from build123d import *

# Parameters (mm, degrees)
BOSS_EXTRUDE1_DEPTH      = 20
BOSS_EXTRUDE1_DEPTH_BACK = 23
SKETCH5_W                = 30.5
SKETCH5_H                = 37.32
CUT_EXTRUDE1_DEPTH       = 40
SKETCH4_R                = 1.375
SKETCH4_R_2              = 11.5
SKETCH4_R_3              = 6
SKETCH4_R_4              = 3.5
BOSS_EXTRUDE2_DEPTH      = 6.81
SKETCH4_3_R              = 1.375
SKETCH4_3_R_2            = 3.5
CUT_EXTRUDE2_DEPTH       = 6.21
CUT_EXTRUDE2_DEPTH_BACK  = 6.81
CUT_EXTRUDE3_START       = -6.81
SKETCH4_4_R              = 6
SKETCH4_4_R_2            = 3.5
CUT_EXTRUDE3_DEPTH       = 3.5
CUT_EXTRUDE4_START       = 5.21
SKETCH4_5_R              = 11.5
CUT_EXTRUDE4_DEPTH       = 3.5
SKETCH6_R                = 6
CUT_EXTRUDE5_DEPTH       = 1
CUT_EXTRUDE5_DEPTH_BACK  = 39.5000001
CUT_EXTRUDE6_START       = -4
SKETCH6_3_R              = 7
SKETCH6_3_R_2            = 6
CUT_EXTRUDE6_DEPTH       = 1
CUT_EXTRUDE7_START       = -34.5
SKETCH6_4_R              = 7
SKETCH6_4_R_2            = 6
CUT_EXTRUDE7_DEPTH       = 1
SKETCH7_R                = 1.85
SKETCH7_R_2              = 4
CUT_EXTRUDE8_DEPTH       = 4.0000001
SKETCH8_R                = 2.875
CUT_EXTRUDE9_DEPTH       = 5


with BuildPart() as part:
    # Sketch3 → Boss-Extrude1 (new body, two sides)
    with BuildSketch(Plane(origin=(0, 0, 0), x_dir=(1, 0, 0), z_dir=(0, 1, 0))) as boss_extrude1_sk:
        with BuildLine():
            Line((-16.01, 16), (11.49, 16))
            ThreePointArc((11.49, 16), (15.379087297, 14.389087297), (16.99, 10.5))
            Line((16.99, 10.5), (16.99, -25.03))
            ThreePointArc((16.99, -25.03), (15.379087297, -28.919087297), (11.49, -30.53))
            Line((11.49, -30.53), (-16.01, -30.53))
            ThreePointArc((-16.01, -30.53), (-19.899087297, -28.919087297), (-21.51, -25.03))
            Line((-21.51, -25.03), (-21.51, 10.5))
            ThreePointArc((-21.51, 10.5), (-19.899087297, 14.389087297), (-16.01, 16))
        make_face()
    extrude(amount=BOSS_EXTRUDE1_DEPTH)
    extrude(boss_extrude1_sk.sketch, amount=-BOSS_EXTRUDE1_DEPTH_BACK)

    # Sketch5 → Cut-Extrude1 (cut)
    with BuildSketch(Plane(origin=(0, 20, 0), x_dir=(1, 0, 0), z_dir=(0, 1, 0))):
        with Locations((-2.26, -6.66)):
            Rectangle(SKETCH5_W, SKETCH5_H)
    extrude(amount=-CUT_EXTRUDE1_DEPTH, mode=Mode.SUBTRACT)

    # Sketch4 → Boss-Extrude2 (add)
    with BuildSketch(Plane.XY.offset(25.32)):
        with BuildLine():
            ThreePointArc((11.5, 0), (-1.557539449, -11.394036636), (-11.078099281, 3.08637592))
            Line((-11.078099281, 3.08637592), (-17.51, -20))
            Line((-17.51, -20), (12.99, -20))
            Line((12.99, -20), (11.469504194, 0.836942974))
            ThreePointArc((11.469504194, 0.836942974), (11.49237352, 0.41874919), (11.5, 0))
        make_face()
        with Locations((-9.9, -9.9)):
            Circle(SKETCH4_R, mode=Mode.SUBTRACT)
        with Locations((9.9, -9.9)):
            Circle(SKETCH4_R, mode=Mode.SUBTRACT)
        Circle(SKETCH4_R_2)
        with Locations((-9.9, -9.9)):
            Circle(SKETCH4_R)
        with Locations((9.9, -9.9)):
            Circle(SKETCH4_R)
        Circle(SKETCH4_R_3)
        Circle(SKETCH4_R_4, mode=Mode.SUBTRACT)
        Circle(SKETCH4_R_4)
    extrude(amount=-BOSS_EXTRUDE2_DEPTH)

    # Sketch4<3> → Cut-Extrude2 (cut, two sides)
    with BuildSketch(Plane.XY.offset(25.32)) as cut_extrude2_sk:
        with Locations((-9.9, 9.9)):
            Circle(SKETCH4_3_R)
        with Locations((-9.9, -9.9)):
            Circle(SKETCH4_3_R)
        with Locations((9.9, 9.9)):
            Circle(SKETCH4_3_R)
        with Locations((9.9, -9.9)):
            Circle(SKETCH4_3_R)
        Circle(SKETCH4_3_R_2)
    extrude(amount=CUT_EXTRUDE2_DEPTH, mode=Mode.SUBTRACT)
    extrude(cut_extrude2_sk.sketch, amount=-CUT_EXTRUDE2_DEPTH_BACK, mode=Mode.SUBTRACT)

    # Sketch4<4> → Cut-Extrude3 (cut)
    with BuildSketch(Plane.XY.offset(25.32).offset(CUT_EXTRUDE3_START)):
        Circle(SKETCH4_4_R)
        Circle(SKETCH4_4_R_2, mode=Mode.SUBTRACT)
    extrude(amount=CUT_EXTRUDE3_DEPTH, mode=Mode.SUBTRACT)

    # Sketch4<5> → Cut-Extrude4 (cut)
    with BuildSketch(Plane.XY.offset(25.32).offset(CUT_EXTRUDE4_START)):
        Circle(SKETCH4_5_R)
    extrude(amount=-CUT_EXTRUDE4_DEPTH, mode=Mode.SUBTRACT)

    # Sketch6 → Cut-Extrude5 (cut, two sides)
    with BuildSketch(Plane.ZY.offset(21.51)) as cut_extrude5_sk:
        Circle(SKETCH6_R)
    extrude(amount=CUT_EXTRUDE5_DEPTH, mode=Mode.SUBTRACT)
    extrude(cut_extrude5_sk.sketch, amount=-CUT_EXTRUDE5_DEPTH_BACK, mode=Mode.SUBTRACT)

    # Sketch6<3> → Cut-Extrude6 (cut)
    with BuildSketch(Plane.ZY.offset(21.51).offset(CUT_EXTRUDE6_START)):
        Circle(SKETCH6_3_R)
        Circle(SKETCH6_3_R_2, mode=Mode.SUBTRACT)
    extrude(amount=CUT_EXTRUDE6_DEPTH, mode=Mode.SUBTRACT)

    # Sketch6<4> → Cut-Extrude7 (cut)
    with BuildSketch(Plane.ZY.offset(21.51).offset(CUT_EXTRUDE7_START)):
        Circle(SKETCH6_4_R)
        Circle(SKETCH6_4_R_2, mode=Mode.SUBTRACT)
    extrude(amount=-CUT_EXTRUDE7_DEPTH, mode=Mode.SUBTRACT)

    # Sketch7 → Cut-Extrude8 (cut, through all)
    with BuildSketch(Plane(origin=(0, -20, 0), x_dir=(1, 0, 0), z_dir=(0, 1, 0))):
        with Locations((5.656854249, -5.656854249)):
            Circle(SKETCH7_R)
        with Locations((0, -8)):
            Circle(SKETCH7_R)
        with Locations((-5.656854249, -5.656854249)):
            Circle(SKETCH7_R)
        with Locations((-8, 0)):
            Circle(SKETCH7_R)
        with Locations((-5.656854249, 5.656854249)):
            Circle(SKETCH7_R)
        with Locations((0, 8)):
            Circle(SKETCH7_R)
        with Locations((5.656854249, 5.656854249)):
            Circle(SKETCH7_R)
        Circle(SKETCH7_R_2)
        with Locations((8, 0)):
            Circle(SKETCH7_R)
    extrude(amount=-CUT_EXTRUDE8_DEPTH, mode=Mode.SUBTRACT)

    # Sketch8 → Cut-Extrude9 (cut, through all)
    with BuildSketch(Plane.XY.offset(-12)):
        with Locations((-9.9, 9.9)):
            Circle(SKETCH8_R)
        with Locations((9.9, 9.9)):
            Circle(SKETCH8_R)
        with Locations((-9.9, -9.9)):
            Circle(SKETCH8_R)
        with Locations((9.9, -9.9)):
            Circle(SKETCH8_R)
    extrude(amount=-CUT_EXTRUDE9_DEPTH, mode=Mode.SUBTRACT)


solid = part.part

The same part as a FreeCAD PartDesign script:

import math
import FreeCAD as App
import Part
import Sketcher


def add_polygon(sketch, points):
    """Adds a closed chain of lines whose ends are joined by coincident constraints."""
    first, n = sketch.GeometryCount, len(points)
    for a, b in zip(points, points[1:] + points[:1]):
        sketch.addGeometry(Part.LineSegment(App.Vector(*a, 0), App.Vector(*b, 0)), False)
    for i in range(n):
        sketch.addConstraint(Sketcher.Constraint("Coincident", first + i, 2, first + (i + 1) % n, 1))

doc = App.newDocument("Part")
body = doc.addObject("PartDesign::Body", "Body")

sketch1 = doc.addObject("Sketcher::SketchObject", "Sketch")
body.addObject(sketch1)
sketch1.AttachmentSupport = (doc.XZ_Plane, [""])
sketch1.MapMode = "FlatFace"
sketch1.addGeometry(Part.LineSegment(App.Vector(11, -16, 0), App.Vector(-16, -16, 0)), False)
sketch1.addGeometry(Part.ArcOfCircle(Part.Circle(App.Vector(-16, -11, 0), App.Vector(0, 0, 1), 5), math.radians(180), math.radians(270)), False)
sketch1.addGeometry(Part.LineSegment(App.Vector(-22, -10, 0), App.Vector(-22, 25, 0)), False)
sketch1.addGeometry(Part.ArcOfCircle(Part.Circle(App.Vector(-16, 25, 0), App.Vector(0, 0, 1), 5), math.radians(90), math.radians(180)), False)
sketch1.addGeometry(Part.LineSegment(App.Vector(-16, 31, 0), App.Vector(11, 31, 0)), False)
sketch1.addGeometry(Part.ArcOfCircle(Part.Circle(App.Vector(11, 25, 0), App.Vector(0, 0, 1), 5), math.radians(0), math.radians(90)), False)
sketch1.addGeometry(Part.LineSegment(App.Vector(17, 25, 0), App.Vector(17, -10, 0)), False)
sketch1.addGeometry(Part.ArcOfCircle(Part.Circle(App.Vector(11, -11, 0), App.Vector(0, 0, 1), 5), math.radians(-90), math.radians(0)), False)
sketch1.addConstraint(Sketcher.Constraint("Tangent", 0, 2, 1, 2))
sketch1.addConstraint(Sketcher.Constraint("Tangent", 1, 1, 2, 1))
sketch1.addConstraint(Sketcher.Constraint("Tangent", 2, 2, 3, 2))
sketch1.addConstraint(Sketcher.Constraint("Tangent", 3, 1, 4, 1))
sketch1.addConstraint(Sketcher.Constraint("Tangent", 4, 2, 5, 2))
sketch1.addConstraint(Sketcher.Constraint("Tangent", 5, 1, 6, 1))
sketch1.addConstraint(Sketcher.Constraint("Tangent", 6, 2, 7, 2))
sketch1.addConstraint(Sketcher.Constraint("Tangent", 7, 1, 0, 1))
sketch1.addConstraint(Sketcher.Constraint("Horizontal", 0))
sketch1.addConstraint(Sketcher.Constraint("Vertical", 2))
sketch1.addConstraint(Sketcher.Constraint("Horizontal", 4))
sketch1.addConstraint(Sketcher.Constraint("Vertical", 6))
sketch1.addConstraint(Sketcher.Constraint("Equal", 1, 3))
sketch1.addConstraint(Sketcher.Constraint("Equal", 3, 5))
sketch1.addConstraint(Sketcher.Constraint("Equal", 5, 7))
sketch1.addConstraint(Sketcher.Constraint("Radius", 1, 5.5))
sketch1.addConstraint(Sketcher.Constraint("DistanceX", 0, 2, 0, 1, 27.5))
sketch1.addConstraint(Sketcher.Constraint("DistanceY", 0, 2, -1, 1, 16.0))
sketch1.addConstraint(Sketcher.Constraint("DistanceY", 2, 1, 2, 2, 35.53))
sketch1.addConstraint(Sketcher.Constraint("DistanceX", 1, 3, -1, 1, 16.01))
pad1 = doc.addObject("PartDesign::Pad", "Pad")
body.addObject(pad1)
pad1.Profile = sketch1
pad1.Type = "TwoLengths"
pad1.Length = 20
pad1.Length2 = 23
pad1.Reversed = True

sketch2 = doc.addObject("Sketcher::SketchObject", "Sketch001")
body.addObject(sketch2)
sketch2.AttachmentSupport = (doc.XZ_Plane, [""])
sketch2.MapMode = "FlatFace"
sketch2.AttachmentOffset = App.Placement(App.Vector(0, 0, -20), App.Rotation())
add_polygon(sketch2, [(-18, -12), (-18, 25), (13, 25), (13, -12)])
sketch2.addConstraint(Sketcher.Constraint("Vertical", 0))
sketch2.addConstraint(Sketcher.Constraint("Horizontal", 1))
sketch2.addConstraint(Sketcher.Constraint("Vertical", 2))
sketch2.addConstraint(Sketcher.Constraint("Horizontal", 3))
sketch2.addConstraint(Sketcher.Constraint("DistanceX", 1, 1, 1, 2, 30.5))
sketch2.addConstraint(Sketcher.Constraint("DistanceY", 2, 2, -1, 1, 12.0))
sketch2.addConstraint(Sketcher.Constraint("DistanceY", 0, 1, 0, 2, 37.32))
sketch2.addConstraint(Sketcher.Constraint("DistanceX", 0, 2, -1, 1, 17.51))
pocket1 = doc.addObject("PartDesign::Pocket", "Pocket")
body.addObject(pocket1)
pocket1.Profile = sketch2
pocket1.Length = 40
pocket1.Reversed = True

sketch3 = doc.addObject("Sketcher::SketchObject", "Sketch002")
body.addObject(sketch3)
sketch3.AttachmentSupport = (doc.XY_Plane, [""])
sketch3.MapMode = "FlatFace"
sketch3.AttachmentOffset = App.Placement(App.Vector(0, 0, 25.32), App.Rotation())
sketch3.addGeometry(Part.LineSegment(App.Vector(-11, 3, 0), App.Vector(-18, -20, 0)), False)
sketch3.addGeometry(Part.LineSegment(App.Vector(-18, -20, 0), App.Vector(13, -20, 0)), False)
sketch3.addGeometry(Part.LineSegment(App.Vector(13, -20, 0), App.Vector(11, 1, 0)), False)
sketch3.addGeometry(Part.ArcOfCircle(Part.Circle(App.Vector(0, 0, 0), App.Vector(0, 0, 1), 12), math.radians(4), math.radians(164)), False)
sketch3.addConstraint(Sketcher.Constraint("Coincident", 0, 2, 1, 1))
sketch3.addConstraint(Sketcher.Constraint("Coincident", 1, 2, 2, 1))
sketch3.addConstraint(Sketcher.Constraint("Tangent", 2, 2, 3, 1))
sketch3.addConstraint(Sketcher.Constraint("Tangent", 3, 2, 0, 1))
sketch3.addConstraint(Sketcher.Constraint("Horizontal", 1))
sketch3.addConstraint(Sketcher.Constraint("Coincident", 3, 3, -1, 1))
sketch3.addConstraint(Sketcher.Constraint("Radius", 3, 11.5))
sketch3.addConstraint(Sketcher.Constraint("DistanceX", 1, 1, 1, 2, 30.5))
sketch3.addConstraint(Sketcher.Constraint("DistanceY", 0, 2, -1, 1, 20.0))
sketch3.addConstraint(Sketcher.Constraint("DistanceX", 0, 2, -1, 1, 17.51))
pad2 = doc.addObject("PartDesign::Pad", "Pad001")
body.addObject(pad2)
pad2.Profile = sketch3
pad2.Length = 6.81
pad2.Reversed = True

sketch4 = doc.addObject("Sketcher::SketchObject", "Sketch003")
body.addObject(sketch4)
sketch4.AttachmentSupport = (doc.XY_Plane, [""])
sketch4.MapMode = "FlatFace"
sketch4.AttachmentOffset = App.Placement(App.Vector(0, 0, 25.32), App.Rotation())
sketch4.addGeometry(Part.Circle(App.Vector(-9.9, 9.9, 0), App.Vector(0, 0, 1), 1.4), False)
sketch4.addGeometry(Part.Circle(App.Vector(-9.9, -9.9, 0), App.Vector(0, 0, 1), 1.4), False)
sketch4.addGeometry(Part.Circle(App.Vector(9.9, 9.9, 0), App.Vector(0, 0, 1), 1.4), False)
sketch4.addGeometry(Part.Circle(App.Vector(9.9, -9.9, 0), App.Vector(0, 0, 1), 1.4), False)
sketch4.addGeometry(Part.Circle(App.Vector(0, 0, 0), App.Vector(0, 0, 1), 3.5), False)
sketch4.addConstraint(Sketcher.Constraint("Coincident", 4, 3, -1, 1))
sketch4.addConstraint(Sketcher.Constraint("Equal", 0, 1))
sketch4.addConstraint(Sketcher.Constraint("Equal", 1, 2))
sketch4.addConstraint(Sketcher.Constraint("Equal", 2, 3))
sketch4.addConstraint(Sketcher.Constraint("Symmetric", 1, 3, 2, 3, -1, 1))
sketch4.addConstraint(Sketcher.Constraint("Symmetric", 0, 3, 3, 3, -1, 1))
sketch4.addConstraint(Sketcher.Constraint("Symmetric", 0, 3, 2, 3, -2))
sketch4.addConstraint(Sketcher.Constraint("Diameter", 4, 7.0))
sketch4.addConstraint(Sketcher.Constraint("Diameter", 0, 2.75))
sketch4.addConstraint(Sketcher.Constraint("DistanceX", 0, 3, -1, 1, 9.9))
sketch4.addConstraint(Sketcher.Constraint("DistanceY", -1, 1, 0, 3, 9.9))
pocket2 = doc.addObject("PartDesign::Pocket", "Pocket001")
body.addObject(pocket2)
pocket2.Profile = sketch4
pocket2.Type = "TwoLengths"
pocket2.Length = 6.21
pocket2.Length2 = 6.81
pocket2.Reversed = True

sketch5 = doc.addObject("Sketcher::SketchObject", "Sketch004")
body.addObject(sketch5)
sketch5.AttachmentSupport = (doc.XY_Plane, [""])
sketch5.MapMode = "FlatFace"
sketch5.AttachmentOffset = App.Placement(App.Vector(0, 0, 18.51), App.Rotation())
sketch5.addGeometry(Part.Circle(App.Vector(0, 0, 0), App.Vector(0, 0, 1), 6), False)
sketch5.addGeometry(Part.Circle(App.Vector(0, 0, 0), App.Vector(0, 0, 1), 3.5), False)
sketch5.addConstraint(Sketcher.Constraint("Coincident", 0, 3, -1, 1))
sketch5.addConstraint(Sketcher.Constraint("Coincident", 1, 3, -1, 1))
sketch5.addConstraint(Sketcher.Constraint("Diameter", 0, 12.0))
sketch5.addConstraint(Sketcher.Constraint("Diameter", 1, 7.0))
pocket3 = doc.addObject("PartDesign::Pocket", "Pocket002")
body.addObject(pocket3)
pocket3.Profile = sketch5
pocket3.Length = 3.5
pocket3.Reversed = True

sketch6 = doc.addObject("Sketcher::SketchObject", "Sketch005")
body.addObject(sketch6)
sketch6.AttachmentSupport = (doc.XY_Plane, [""])
sketch6.MapMode = "FlatFace"
sketch6.AttachmentOffset = App.Placement(App.Vector(0, 0, 30.53), App.Rotation())
sketch6.addGeometry(Part.Circle(App.Vector(0, 0, 0), App.Vector(0, 0, 1), 12), False)
sketch6.addConstraint(Sketcher.Constraint("Coincident", 0, 3, -1, 1))
sketch6.addConstraint(Sketcher.Constraint("Diameter", 0, 23.0))
pocket4 = doc.addObject("PartDesign::Pocket", "Pocket003")
body.addObject(pocket4)
pocket4.Profile = sketch6
pocket4.Length = 3.5

sketch7 = doc.addObject("Sketcher::SketchObject", "Sketch006")
body.addObject(sketch7)
sketch7.AttachmentSupport = (doc.YZ_Plane, [""])
sketch7.MapMode = "FlatFace"
sketch7.AttachmentOffset = App.Placement(App.Vector(0, 0, -21.51), App.Rotation())
sketch7.addGeometry(Part.Circle(App.Vector(0, 0, 0), App.Vector(0, 0, 1), 6), False)
sketch7.addConstraint(Sketcher.Constraint("Coincident", 0, 3, -1, 1))
sketch7.addConstraint(Sketcher.Constraint("Diameter", 0, 12.0))
pocket5 = doc.addObject("PartDesign::Pocket", "Pocket004")
body.addObject(pocket5)
pocket5.Profile = sketch7
pocket5.Type = "ThroughAll"
pocket5.Midplane = True

sketch8 = doc.addObject("Sketcher::SketchObject", "Sketch007")
body.addObject(sketch8)
sketch8.AttachmentSupport = (doc.YZ_Plane, [""])
sketch8.MapMode = "FlatFace"
sketch8.AttachmentOffset = App.Placement(App.Vector(0, 0, -17.51), App.Rotation())
sketch8.addGeometry(Part.Circle(App.Vector(0, 0, 0), App.Vector(0, 0, 1), 7), False)
sketch8.addGeometry(Part.Circle(App.Vector(0, 0, 0), App.Vector(0, 0, 1), 6), False)
sketch8.addConstraint(Sketcher.Constraint("Coincident", 0, 3, -1, 1))
sketch8.addConstraint(Sketcher.Constraint("Coincident", 1, 3, -1, 1))
sketch8.addConstraint(Sketcher.Constraint("Diameter", 0, 14.0))
sketch8.addConstraint(Sketcher.Constraint("Diameter", 1, 12.0))
pocket6 = doc.addObject("PartDesign::Pocket", "Pocket005")
body.addObject(pocket6)
pocket6.Profile = sketch8
pocket6.Length = 1

sketch9 = doc.addObject("Sketcher::SketchObject", "Sketch008")
body.addObject(sketch9)
sketch9.AttachmentSupport = (doc.YZ_Plane, [""])
sketch9.MapMode = "FlatFace"
sketch9.AttachmentOffset = App.Placement(App.Vector(0, 0, 12.99), App.Rotation())
sketch9.addGeometry(Part.Circle(App.Vector(0, 0, 0), App.Vector(0, 0, 1), 7), False)
sketch9.addGeometry(Part.Circle(App.Vector(0, 0, 0), App.Vector(0, 0, 1), 6), False)
sketch9.addConstraint(Sketcher.Constraint("Coincident", 0, 3, -1, 1))
sketch9.addConstraint(Sketcher.Constraint("Coincident", 1, 3, -1, 1))
sketch9.addConstraint(Sketcher.Constraint("Diameter", 0, 14.0))
sketch9.addConstraint(Sketcher.Constraint("Diameter", 1, 12.0))
pocket7 = doc.addObject("PartDesign::Pocket", "Pocket006")
body.addObject(pocket7)
pocket7.Profile = sketch9
pocket7.Length = 1
pocket7.Reversed = True

sketch10 = doc.addObject("Sketcher::SketchObject", "Sketch009")
body.addObject(sketch10)
sketch10.AttachmentSupport = (doc.XZ_Plane, [""])
sketch10.MapMode = "FlatFace"
sketch10.AttachmentOffset = App.Placement(App.Vector(0, 0, 20), App.Rotation())
sketch10.addGeometry(Part.Circle(App.Vector(5.7, 5.7, 0), App.Vector(0, 0, 1), 1.9), False)
sketch10.addGeometry(Part.Circle(App.Vector(0, 8, 0), App.Vector(0, 0, 1), 1.9), False)
sketch10.addGeometry(Part.Circle(App.Vector(-5.7, 5.7, 0), App.Vector(0, 0, 1), 1.9), False)
sketch10.addGeometry(Part.Circle(App.Vector(-8, 0, 0), App.Vector(0, 0, 1), 1.9), False)
sketch10.addGeometry(Part.Circle(App.Vector(-5.7, -5.7, 0), App.Vector(0, 0, 1), 1.9), False)
sketch10.addGeometry(Part.Circle(App.Vector(0, -8, 0), App.Vector(0, 0, 1), 1.9), False)
sketch10.addGeometry(Part.Circle(App.Vector(5.7, -5.7, 0), App.Vector(0, 0, 1), 1.9), False)
sketch10.addGeometry(Part.Circle(App.Vector(0, 0, 0), App.Vector(0, 0, 1), 4), False)
sketch10.addGeometry(Part.Circle(App.Vector(8, 0, 0), App.Vector(0, 0, 1), 1.9), False)
sketch10.addConstraint(Sketcher.Constraint("Coincident", 7, 3, -1, 1))
sketch10.addConstraint(Sketcher.Constraint("Equal", 0, 1))
sketch10.addConstraint(Sketcher.Constraint("Equal", 1, 2))
sketch10.addConstraint(Sketcher.Constraint("Equal", 2, 3))
sketch10.addConstraint(Sketcher.Constraint("Equal", 3, 4))
sketch10.addConstraint(Sketcher.Constraint("Equal", 4, 5))
sketch10.addConstraint(Sketcher.Constraint("Equal", 5, 6))
sketch10.addConstraint(Sketcher.Constraint("Equal", 6, 8))
sketch10.addConstraint(Sketcher.Constraint("Symmetric", 0, 3, 4, 3, -1, 1))
sketch10.addConstraint(Sketcher.Constraint("Symmetric", 1, 3, 5, 3, -1, 1))
sketch10.addConstraint(Sketcher.Constraint("Symmetric", 2, 3, 6, 3, -1, 1))
sketch10.addConstraint(Sketcher.Constraint("Symmetric", 3, 3, 8, 3, -1, 1))
sketch10.addConstraint(Sketcher.Constraint("Symmetric", 0, 3, 2, 3, -2))
sketch10.addConstraint(Sketcher.Constraint("PointOnObject", 1, 3, -2))
sketch10.addConstraint(Sketcher.Constraint("PointOnObject", 3, 3, -1))
sketch10.addConstraint(Sketcher.Constraint("Diameter", 7, 8.0))
sketch10.addConstraint(Sketcher.Constraint("Diameter", 0, 3.7))
sketch10.addConstraint(Sketcher.Constraint("DistanceY", -1, 1, 1, 3, 8.0))
sketch10.addConstraint(Sketcher.Constraint("DistanceX", 3, 3, -1, 1, 8.0))
sketch10.addConstraint(Sketcher.Constraint("DistanceX", 2, 3, 0, 3, 11.313708))
sketch10.addConstraint(Sketcher.Constraint("DistanceY", 4, 3, 2, 3, 11.313708))
pocket8 = doc.addObject("PartDesign::Pocket", "Pocket007")
body.addObject(pocket8)
pocket8.Profile = sketch10
pocket8.Type = "ThroughAll"
pocket8.Reversed = True

sketch11 = doc.addObject("Sketcher::SketchObject", "Sketch010")
body.addObject(sketch11)
sketch11.AttachmentSupport = (doc.XY_Plane, [""])
sketch11.MapMode = "FlatFace"
sketch11.AttachmentOffset = App.Placement(App.Vector(0, 0, -12), App.Rotation())
sketch11.addGeometry(Part.Circle(App.Vector(-9.9, 9.9, 0), App.Vector(0, 0, 1), 2.9), False)
sketch11.addGeometry(Part.Circle(App.Vector(9.9, 9.9, 0), App.Vector(0, 0, 1), 2.9), False)
sketch11.addGeometry(Part.Circle(App.Vector(-9.9, -9.9, 0), App.Vector(0, 0, 1), 2.9), False)
sketch11.addGeometry(Part.Circle(App.Vector(9.9, -9.9, 0), App.Vector(0, 0, 1), 2.9), False)
sketch11.addConstraint(Sketcher.Constraint("Equal", 0, 1))
sketch11.addConstraint(Sketcher.Constraint("Equal", 1, 2))
sketch11.addConstraint(Sketcher.Constraint("Equal", 2, 3))
sketch11.addConstraint(Sketcher.Constraint("Symmetric", 1, 3, 2, 3, -1, 1))
sketch11.addConstraint(Sketcher.Constraint("Symmetric", 0, 3, 3, 3, -1, 1))
sketch11.addConstraint(Sketcher.Constraint("Symmetric", 0, 3, 1, 3, -2))
sketch11.addConstraint(Sketcher.Constraint("Diameter", 0, 5.75))
sketch11.addConstraint(Sketcher.Constraint("DistanceX", 0, 3, -1, 1, 9.9))
sketch11.addConstraint(Sketcher.Constraint("DistanceY", -1, 1, 0, 3, 9.9))
pocket9 = doc.addObject("PartDesign::Pocket", "Pocket008")
body.addObject(pocket9)
pocket9.Profile = sketch11
pocket9.Type = "ThroughAll"

doc.recompute()
